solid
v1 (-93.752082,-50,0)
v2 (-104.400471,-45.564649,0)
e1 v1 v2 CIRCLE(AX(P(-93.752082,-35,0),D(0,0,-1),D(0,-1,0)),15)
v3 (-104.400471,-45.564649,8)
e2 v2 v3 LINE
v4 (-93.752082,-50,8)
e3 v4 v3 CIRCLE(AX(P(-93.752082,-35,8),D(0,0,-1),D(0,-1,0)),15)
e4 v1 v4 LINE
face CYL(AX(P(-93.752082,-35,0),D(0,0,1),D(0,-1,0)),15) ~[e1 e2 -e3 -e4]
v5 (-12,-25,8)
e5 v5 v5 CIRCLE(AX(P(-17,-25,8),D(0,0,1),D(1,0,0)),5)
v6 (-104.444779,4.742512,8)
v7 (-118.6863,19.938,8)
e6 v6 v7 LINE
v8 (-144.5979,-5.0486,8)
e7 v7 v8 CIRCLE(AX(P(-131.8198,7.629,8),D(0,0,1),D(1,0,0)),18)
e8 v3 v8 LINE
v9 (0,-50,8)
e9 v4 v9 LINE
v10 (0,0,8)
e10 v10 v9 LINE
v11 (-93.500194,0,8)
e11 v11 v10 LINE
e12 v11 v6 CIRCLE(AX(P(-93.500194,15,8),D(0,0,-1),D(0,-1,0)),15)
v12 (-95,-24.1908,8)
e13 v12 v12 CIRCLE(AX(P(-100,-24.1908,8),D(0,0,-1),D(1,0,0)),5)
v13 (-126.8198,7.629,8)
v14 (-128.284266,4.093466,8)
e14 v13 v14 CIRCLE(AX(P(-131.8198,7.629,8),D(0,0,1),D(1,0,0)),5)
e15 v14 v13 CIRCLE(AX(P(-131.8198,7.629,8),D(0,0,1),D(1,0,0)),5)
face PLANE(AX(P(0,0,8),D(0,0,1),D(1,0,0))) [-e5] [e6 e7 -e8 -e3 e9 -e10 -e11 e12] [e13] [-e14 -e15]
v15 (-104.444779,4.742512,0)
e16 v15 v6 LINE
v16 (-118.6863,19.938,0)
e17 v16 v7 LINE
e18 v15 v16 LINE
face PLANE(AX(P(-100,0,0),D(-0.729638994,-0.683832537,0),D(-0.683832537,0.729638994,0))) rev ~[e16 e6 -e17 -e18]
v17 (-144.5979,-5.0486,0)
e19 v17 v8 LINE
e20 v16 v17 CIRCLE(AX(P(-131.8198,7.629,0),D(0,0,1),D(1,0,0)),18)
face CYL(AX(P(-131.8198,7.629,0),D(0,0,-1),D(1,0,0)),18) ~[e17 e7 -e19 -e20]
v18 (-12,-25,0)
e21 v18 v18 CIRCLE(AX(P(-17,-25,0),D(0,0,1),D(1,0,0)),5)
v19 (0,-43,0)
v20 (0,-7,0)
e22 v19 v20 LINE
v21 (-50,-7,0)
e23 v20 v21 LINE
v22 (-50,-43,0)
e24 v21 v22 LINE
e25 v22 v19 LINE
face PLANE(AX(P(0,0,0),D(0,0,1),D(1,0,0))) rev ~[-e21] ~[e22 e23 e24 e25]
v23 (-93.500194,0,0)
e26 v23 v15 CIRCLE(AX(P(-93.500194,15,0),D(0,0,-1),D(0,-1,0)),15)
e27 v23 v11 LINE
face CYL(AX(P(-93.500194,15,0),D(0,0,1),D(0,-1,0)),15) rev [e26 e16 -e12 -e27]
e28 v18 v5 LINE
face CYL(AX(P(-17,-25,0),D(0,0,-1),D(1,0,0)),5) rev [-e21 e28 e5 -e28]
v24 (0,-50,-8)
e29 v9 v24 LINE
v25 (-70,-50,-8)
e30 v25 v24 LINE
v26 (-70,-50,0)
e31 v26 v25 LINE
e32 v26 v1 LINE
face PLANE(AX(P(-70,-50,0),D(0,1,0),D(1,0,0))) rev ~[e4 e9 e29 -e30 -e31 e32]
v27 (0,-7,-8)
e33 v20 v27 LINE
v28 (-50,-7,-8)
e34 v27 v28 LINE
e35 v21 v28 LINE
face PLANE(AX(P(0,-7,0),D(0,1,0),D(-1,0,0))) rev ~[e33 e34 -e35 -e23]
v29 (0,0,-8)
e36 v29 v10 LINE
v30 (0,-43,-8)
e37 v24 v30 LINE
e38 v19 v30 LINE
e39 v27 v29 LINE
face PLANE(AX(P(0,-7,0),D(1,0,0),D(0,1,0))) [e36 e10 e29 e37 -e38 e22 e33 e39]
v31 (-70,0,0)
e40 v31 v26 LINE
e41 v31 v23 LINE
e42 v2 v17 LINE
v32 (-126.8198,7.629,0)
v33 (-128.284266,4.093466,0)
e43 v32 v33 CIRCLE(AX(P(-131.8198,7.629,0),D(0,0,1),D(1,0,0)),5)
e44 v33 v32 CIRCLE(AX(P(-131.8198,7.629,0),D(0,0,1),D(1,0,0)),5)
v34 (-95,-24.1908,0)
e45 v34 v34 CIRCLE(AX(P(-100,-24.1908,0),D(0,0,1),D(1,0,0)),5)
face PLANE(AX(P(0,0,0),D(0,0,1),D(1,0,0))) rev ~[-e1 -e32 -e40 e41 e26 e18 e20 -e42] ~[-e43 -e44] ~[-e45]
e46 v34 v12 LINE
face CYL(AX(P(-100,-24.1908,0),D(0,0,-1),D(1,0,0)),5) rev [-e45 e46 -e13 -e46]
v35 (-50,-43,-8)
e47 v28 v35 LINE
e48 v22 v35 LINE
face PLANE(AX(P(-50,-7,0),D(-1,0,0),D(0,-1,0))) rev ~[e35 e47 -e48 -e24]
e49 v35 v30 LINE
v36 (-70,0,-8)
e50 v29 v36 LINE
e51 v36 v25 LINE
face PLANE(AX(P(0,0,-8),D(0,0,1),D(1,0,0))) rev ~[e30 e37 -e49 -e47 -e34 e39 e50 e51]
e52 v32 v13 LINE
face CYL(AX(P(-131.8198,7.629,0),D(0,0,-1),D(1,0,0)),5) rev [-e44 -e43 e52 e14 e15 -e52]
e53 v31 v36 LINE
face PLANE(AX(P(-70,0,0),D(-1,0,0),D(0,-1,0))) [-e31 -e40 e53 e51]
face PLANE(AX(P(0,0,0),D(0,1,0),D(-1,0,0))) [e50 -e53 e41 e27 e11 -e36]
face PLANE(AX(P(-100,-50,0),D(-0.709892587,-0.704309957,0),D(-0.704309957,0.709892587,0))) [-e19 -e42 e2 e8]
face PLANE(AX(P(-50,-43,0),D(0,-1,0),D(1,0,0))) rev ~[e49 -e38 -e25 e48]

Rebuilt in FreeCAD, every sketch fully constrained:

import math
import FreeCAD as App
import Part
import Sketcher
from FreeCAD import Vector
Q = App.Units.Quantity


def edges_at(feature, points):
    """Names of the edges that pass closest to the given points."""
    edges = feature.Shape.Edges
    near = lambda p: min(range(len(edges)), key=lambda i: edges[i].distToShape(Part.Vertex(*p))[0])
    return sorted({f"Edge{near(p) + 1}" for p in points})


def add_polygon(sketch, points):
    """Adds a closed chain of lines whose ends are joined by coincident constraints."""
    first, n = sketch.GeometryCount, len(points)
    for a, b in zip(points, points[1:] + points[:1]):
        sketch.addGeometry(Part.LineSegment(App.Vector(*a, 0), App.Vector(*b, 0)), False)
    for i in range(n):
        sketch.addConstraint(Sketcher.Constraint("Coincident", first + i, 2, first + (i + 1) % n, 1))

doc = App.newDocument("Part")
body = doc.addObject("PartDesign::Body", "Body")

# Sketch on XY plane
sketch1 = doc.addObject("Sketcher::SketchObject", "Sketch")
body.addObject(sketch1)
sketch1.AttachmentSupport = (doc.XY_Plane, [""])
sketch1.MapMode = "FlatFace"
sketch1.addGeometry([
    Part.LineSegment(Vector(0, 0, 0), Vector(-100, 0, 0)),  # 0
    Part.LineSegment(Vector(-100, 0, 0), Vector(-118.6863, 19.938, 0)),  # 1
    Part.ArcOfCircle(Part.Circle(Vector(-131.8198, 7.629, 0), Vector(0, 0, 1), 18), math.radians(43.143899), math.radians(224.773795)),  # 2
    Part.LineSegment(Vector(-144.5979, -5.0486, 0), Vector(-100, -50, 0)),  # 3
    Part.LineSegment(Vector(-100, -50, 0), Vector(0, -50, 0)),  # 4
    Part.LineSegment(Vector(0, -50, 0), Vector(0, 0, 0)),  # 5
    Part.Circle(Vector(-17, -25, 0), Vector(0, 0, 1), 5),  # 6
    Part.Circle(Vector(-100, -24.1908, 0), Vector(0, 0, 1), 5),  # 7
    Part.Circle(Vector(-131.8198, 7.629, 0), Vector(0, 0, 1), 5),  # 8
], False)
sketch1.addConstraint([
    Sketcher.Constraint("Coincident", 0, 2, 1, 1),
    Sketcher.Constraint("Tangent", 1, 2, 2, 1),
    Sketcher.Constraint("Tangent", 2, 2, 3, 1),
    Sketcher.Constraint("Coincident", 3, 2, 4, 1),
    Sketcher.Constraint("Coincident", 4, 2, 5, 1),
    Sketcher.Constraint("Coincident", 5, 2, 0, 1),
    Sketcher.Constraint("Horizontal", 0),
    Sketcher.Constraint("Horizontal", 4),
    Sketcher.Constraint("Vertical", 5),
    Sketcher.Constraint("Coincident", 5, 2, -1, 1),
    Sketcher.Constraint("Coincident", 8, 3, 2, 3),
    Sketcher.Constraint("Equal", 6, 7),
    Sketcher.Constraint("Equal", 7, 8),
    Sketcher.Constraint("Vertical", 7, 3, 0, 2),
    Sketcher.Constraint("Vertical", 0, 2, 3, 2),
    Sketcher.Constraint("Diameter", 6, Q("10 mm")),
    Sketcher.Constraint("Radius", 2, Q("18 mm")),
    Sketcher.Constraint("DistanceX", 0, 2, 0, 1, Q("100 mm")),
    Sketcher.Constraint("DistanceY", 5, 1, 5, 2, Q("50 mm")),
    Sketcher.Constraint("DistanceX", 6, 3, -1, 1, Q("17 mm")),
    Sketcher.Constraint("DistanceY", 6, 3, -1, 1, Q("25 mm")),
    Sketcher.Constraint("DistanceY", -1, 1, 2, 3, Q("7.629 mm")),
    Sketcher.Constraint("DistanceY", -1, 1, 1, 2, Q("19.938 mm")),
    Sketcher.Constraint("DistanceY", 7, 3, -1, 1, Q("24.1908 mm")),
])
pad1 = doc.addObject("PartDesign::Pad", "Pad")
body.addObject(pad1)
pad1.Profile = sketch1
pad1.Length = 8

# Sketch on XY plane
sketch2 = doc.addObject("Sketcher::SketchObject", "Sketch001")
body.addObject(sketch2)
sketch2.AttachmentSupport = (doc.XY_Plane, [""])
sketch2.MapMode = "FlatFace"
add_polygon(sketch2, [(0, -7), (0, 0), (-70, 0), (-70, -50), (0, -50), (0, -43), (-50, -43), (-50, -7)])  # lines 0-7
sketch2.addConstraint([
    Sketcher.Constraint("Vertical", 0),
    Sketcher.Constraint("Horizontal", 1),
    Sketcher.Constraint("Vertical", 2),
    Sketcher.Constraint("Horizontal", 3),
    Sketcher.Constraint("Vertical", 4),
    Sketcher.Constraint("Horizontal", 5),
    Sketcher.Constraint("Vertical", 6),
    Sketcher.Constraint("Horizontal", 7),
    Sketcher.Constraint("Coincident", 0, 2, -1, 1),
    Sketcher.Constraint("PointOnObject", 3, 2, -2),
    Sketcher.Constraint("Equal", 7, 2),
    Sketcher.Constraint("Equal", 0, 4),
    Sketcher.Constraint("DistanceX", 1, 2, 1, 1, Q("70 mm")),
    Sketcher.Constraint("DistanceX", 5, 2, 5, 1, Q("50 mm")),
    Sketcher.Constraint("DistanceY", 0, 1, 0, 2, Q("7 mm")),
])
pad2 = doc.addObject("PartDesign::Pad", "Pad001")
body.addObject(pad2)
pad2.Profile = sketch2
pad2.Length = 8
pad2.Reversed = True
doc.recompute()

fillet = doc.addObject("PartDesign::Fillet", "Fillet")
body.addObject(fillet)
fillet.Base = (pad2, edges_at(pad2, [(-100, 0, 4), (-100, -50, 4)]))
fillet.Radius = 15

doc.recompute()
